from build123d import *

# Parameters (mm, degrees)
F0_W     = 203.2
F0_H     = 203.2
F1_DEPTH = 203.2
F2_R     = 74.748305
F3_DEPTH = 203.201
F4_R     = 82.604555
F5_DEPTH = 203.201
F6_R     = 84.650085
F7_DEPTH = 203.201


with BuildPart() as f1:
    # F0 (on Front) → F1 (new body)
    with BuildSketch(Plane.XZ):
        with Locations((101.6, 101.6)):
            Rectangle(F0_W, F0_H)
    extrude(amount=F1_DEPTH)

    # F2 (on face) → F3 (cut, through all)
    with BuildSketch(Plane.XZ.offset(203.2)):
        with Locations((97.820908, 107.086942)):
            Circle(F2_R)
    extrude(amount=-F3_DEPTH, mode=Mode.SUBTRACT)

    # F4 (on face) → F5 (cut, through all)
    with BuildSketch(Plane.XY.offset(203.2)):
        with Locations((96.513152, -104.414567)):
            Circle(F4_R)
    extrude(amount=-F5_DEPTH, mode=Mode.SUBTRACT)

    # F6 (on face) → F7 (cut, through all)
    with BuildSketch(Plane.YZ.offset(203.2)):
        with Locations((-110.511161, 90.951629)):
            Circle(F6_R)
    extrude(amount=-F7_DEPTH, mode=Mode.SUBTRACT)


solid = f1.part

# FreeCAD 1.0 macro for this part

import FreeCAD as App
import Part
import Sketcher

V = App.Vector
Q = App.Units.Quantity

doc = App.newDocument("Part")
body = doc.addObject("PartDesign::Body", "Body")

# Sketch on XZ plane
sketch1 = body.newObject("Sketcher::SketchObject", "Sketch")
sketch1.AttachmentSupport = (doc.getObject("XZ_Plane"), [""])
sketch1.MapMode = "FlatFace"
sketch1.addGeometry([
    Part.LineSegment(V(0, 203, 0), V(0, 0, 0)),
    Part.LineSegment(V(0, 0, 0), V(203, 0, 0)),
    Part.LineSegment(V(203, 0, 0), V(203, 203, 0)),
    Part.LineSegment(V(203, 203, 0), V(0, 203, 0)),
], False)
sketch1.addConstraint([
    Sketcher.Constraint("Coincident", 0, 2, 1, 1),
    Sketcher.Constraint("Coincident", 1, 2, 2, 1),
    Sketcher.Constraint("Coincident", 2, 2, 3, 1),
    Sketcher.Constraint("Coincident", 3, 2, 0, 1),
    Sketcher.Constraint("Vertical", 0),
    Sketcher.Constraint("Horizontal", 1),
    Sketcher.Constraint("Vertical", 2),
    Sketcher.Constraint("Horizontal", 3),
    Sketcher.Constraint("Coincident", 0, 2, -1, 1),
    Sketcher.Constraint("Equal", 3, 0),
    Sketcher.Constraint("DistanceX", 1, 1, 1, 2, Q("8 in")),
])
pad1 = body.newObject("PartDesign::Pad", "Pad")
pad1.Profile = sketch1
pad1.Length = Q("8 in")

# Sketch on XZ plane
sketch2 = body.newObject("Sketcher::SketchObject", "Sketch001")
sketch2.AttachmentSupport = (doc.getObject("XZ_Plane"), [""])
sketch2.MapMode = "FlatFace"
sketch2.AttachmentOffset = App.Placement(V(0, 0, 8 * 25.4), App.Rotation())
sketch2.addGeometry(Part.Circle(V(98, 107, 0), V(0, 0, 1), 75), False)
sketch2.addConstraint([
    Sketcher.Constraint("Diameter", 0, Q("149.49661 mm")),
    Sketcher.Constraint("DistanceX", -1, 1, 0, 3, Q("97.820908 mm")),
    Sketcher.Constraint("DistanceY", -1, 1, 0, 3, Q("107.086942 mm")),
])
pocket1 = body.newObject("PartDesign::Pocket", "Pocket")
pocket1.Profile = sketch2
pocket1.Type = "ThroughAll"

# Sketch on XY plane
sketch3 = body.newObject("Sketcher::SketchObject", "Sketch002")
sketch3.AttachmentSupport = (doc.getObject("XY_Plane"), [""])
sketch3.MapMode = "FlatFace"
sketch3.AttachmentOffset = App.Placement(V(0, 0, 8 * 25.4), App.Rotation())
sketch3.addGeometry(Part.Circle(V(97, -104, 0), V(0, 0, 1), 83), False)
sketch3.addConstraint([
    Sketcher.Constraint("Diameter", 0, Q("165.20911 mm")),
    Sketcher.Constraint("DistanceX", -1, 1, 0, 3, Q("96.513152 mm")),
    Sketcher.Constraint("DistanceY", 0, 3, -1, 1, Q("104.414567 mm")),
])
pocket2 = body.newObject("PartDesign::Pocket", "Pocket001")
pocket2.Profile = sketch3
pocket2.Type = "ThroughAll"

# Sketch on YZ plane
sketch4 = body.newObject("Sketcher::SketchObject", "Sketch003")
sketch4.AttachmentSupport = (doc.getObject("YZ_Plane"), [""])
sketch4.MapMode = "FlatFace"
sketch4.AttachmentOffset = App.Placement(V(0, 0, 8 * 25.4), App.Rotation())
sketch4.addGeometry(Part.Circle(V(-111, 91, 0), V(0, 0, 1), 85), False)
sketch4.addConstraint([
    Sketcher.Constraint("Diameter", 0, Q("169.30017 mm")),
    Sketcher.Constraint("DistanceX", 0, 3, -1, 1, Q("110.511161 mm")),
    Sketcher.Constraint("DistanceY", -1, 1, 0, 3, Q("90.951629 mm")),
])
pocket3 = body.newObject("PartDesign::Pocket", "Pocket002")
pocket3.Profile = sketch4
pocket3.Type = "ThroughAll"

doc.recompute()
